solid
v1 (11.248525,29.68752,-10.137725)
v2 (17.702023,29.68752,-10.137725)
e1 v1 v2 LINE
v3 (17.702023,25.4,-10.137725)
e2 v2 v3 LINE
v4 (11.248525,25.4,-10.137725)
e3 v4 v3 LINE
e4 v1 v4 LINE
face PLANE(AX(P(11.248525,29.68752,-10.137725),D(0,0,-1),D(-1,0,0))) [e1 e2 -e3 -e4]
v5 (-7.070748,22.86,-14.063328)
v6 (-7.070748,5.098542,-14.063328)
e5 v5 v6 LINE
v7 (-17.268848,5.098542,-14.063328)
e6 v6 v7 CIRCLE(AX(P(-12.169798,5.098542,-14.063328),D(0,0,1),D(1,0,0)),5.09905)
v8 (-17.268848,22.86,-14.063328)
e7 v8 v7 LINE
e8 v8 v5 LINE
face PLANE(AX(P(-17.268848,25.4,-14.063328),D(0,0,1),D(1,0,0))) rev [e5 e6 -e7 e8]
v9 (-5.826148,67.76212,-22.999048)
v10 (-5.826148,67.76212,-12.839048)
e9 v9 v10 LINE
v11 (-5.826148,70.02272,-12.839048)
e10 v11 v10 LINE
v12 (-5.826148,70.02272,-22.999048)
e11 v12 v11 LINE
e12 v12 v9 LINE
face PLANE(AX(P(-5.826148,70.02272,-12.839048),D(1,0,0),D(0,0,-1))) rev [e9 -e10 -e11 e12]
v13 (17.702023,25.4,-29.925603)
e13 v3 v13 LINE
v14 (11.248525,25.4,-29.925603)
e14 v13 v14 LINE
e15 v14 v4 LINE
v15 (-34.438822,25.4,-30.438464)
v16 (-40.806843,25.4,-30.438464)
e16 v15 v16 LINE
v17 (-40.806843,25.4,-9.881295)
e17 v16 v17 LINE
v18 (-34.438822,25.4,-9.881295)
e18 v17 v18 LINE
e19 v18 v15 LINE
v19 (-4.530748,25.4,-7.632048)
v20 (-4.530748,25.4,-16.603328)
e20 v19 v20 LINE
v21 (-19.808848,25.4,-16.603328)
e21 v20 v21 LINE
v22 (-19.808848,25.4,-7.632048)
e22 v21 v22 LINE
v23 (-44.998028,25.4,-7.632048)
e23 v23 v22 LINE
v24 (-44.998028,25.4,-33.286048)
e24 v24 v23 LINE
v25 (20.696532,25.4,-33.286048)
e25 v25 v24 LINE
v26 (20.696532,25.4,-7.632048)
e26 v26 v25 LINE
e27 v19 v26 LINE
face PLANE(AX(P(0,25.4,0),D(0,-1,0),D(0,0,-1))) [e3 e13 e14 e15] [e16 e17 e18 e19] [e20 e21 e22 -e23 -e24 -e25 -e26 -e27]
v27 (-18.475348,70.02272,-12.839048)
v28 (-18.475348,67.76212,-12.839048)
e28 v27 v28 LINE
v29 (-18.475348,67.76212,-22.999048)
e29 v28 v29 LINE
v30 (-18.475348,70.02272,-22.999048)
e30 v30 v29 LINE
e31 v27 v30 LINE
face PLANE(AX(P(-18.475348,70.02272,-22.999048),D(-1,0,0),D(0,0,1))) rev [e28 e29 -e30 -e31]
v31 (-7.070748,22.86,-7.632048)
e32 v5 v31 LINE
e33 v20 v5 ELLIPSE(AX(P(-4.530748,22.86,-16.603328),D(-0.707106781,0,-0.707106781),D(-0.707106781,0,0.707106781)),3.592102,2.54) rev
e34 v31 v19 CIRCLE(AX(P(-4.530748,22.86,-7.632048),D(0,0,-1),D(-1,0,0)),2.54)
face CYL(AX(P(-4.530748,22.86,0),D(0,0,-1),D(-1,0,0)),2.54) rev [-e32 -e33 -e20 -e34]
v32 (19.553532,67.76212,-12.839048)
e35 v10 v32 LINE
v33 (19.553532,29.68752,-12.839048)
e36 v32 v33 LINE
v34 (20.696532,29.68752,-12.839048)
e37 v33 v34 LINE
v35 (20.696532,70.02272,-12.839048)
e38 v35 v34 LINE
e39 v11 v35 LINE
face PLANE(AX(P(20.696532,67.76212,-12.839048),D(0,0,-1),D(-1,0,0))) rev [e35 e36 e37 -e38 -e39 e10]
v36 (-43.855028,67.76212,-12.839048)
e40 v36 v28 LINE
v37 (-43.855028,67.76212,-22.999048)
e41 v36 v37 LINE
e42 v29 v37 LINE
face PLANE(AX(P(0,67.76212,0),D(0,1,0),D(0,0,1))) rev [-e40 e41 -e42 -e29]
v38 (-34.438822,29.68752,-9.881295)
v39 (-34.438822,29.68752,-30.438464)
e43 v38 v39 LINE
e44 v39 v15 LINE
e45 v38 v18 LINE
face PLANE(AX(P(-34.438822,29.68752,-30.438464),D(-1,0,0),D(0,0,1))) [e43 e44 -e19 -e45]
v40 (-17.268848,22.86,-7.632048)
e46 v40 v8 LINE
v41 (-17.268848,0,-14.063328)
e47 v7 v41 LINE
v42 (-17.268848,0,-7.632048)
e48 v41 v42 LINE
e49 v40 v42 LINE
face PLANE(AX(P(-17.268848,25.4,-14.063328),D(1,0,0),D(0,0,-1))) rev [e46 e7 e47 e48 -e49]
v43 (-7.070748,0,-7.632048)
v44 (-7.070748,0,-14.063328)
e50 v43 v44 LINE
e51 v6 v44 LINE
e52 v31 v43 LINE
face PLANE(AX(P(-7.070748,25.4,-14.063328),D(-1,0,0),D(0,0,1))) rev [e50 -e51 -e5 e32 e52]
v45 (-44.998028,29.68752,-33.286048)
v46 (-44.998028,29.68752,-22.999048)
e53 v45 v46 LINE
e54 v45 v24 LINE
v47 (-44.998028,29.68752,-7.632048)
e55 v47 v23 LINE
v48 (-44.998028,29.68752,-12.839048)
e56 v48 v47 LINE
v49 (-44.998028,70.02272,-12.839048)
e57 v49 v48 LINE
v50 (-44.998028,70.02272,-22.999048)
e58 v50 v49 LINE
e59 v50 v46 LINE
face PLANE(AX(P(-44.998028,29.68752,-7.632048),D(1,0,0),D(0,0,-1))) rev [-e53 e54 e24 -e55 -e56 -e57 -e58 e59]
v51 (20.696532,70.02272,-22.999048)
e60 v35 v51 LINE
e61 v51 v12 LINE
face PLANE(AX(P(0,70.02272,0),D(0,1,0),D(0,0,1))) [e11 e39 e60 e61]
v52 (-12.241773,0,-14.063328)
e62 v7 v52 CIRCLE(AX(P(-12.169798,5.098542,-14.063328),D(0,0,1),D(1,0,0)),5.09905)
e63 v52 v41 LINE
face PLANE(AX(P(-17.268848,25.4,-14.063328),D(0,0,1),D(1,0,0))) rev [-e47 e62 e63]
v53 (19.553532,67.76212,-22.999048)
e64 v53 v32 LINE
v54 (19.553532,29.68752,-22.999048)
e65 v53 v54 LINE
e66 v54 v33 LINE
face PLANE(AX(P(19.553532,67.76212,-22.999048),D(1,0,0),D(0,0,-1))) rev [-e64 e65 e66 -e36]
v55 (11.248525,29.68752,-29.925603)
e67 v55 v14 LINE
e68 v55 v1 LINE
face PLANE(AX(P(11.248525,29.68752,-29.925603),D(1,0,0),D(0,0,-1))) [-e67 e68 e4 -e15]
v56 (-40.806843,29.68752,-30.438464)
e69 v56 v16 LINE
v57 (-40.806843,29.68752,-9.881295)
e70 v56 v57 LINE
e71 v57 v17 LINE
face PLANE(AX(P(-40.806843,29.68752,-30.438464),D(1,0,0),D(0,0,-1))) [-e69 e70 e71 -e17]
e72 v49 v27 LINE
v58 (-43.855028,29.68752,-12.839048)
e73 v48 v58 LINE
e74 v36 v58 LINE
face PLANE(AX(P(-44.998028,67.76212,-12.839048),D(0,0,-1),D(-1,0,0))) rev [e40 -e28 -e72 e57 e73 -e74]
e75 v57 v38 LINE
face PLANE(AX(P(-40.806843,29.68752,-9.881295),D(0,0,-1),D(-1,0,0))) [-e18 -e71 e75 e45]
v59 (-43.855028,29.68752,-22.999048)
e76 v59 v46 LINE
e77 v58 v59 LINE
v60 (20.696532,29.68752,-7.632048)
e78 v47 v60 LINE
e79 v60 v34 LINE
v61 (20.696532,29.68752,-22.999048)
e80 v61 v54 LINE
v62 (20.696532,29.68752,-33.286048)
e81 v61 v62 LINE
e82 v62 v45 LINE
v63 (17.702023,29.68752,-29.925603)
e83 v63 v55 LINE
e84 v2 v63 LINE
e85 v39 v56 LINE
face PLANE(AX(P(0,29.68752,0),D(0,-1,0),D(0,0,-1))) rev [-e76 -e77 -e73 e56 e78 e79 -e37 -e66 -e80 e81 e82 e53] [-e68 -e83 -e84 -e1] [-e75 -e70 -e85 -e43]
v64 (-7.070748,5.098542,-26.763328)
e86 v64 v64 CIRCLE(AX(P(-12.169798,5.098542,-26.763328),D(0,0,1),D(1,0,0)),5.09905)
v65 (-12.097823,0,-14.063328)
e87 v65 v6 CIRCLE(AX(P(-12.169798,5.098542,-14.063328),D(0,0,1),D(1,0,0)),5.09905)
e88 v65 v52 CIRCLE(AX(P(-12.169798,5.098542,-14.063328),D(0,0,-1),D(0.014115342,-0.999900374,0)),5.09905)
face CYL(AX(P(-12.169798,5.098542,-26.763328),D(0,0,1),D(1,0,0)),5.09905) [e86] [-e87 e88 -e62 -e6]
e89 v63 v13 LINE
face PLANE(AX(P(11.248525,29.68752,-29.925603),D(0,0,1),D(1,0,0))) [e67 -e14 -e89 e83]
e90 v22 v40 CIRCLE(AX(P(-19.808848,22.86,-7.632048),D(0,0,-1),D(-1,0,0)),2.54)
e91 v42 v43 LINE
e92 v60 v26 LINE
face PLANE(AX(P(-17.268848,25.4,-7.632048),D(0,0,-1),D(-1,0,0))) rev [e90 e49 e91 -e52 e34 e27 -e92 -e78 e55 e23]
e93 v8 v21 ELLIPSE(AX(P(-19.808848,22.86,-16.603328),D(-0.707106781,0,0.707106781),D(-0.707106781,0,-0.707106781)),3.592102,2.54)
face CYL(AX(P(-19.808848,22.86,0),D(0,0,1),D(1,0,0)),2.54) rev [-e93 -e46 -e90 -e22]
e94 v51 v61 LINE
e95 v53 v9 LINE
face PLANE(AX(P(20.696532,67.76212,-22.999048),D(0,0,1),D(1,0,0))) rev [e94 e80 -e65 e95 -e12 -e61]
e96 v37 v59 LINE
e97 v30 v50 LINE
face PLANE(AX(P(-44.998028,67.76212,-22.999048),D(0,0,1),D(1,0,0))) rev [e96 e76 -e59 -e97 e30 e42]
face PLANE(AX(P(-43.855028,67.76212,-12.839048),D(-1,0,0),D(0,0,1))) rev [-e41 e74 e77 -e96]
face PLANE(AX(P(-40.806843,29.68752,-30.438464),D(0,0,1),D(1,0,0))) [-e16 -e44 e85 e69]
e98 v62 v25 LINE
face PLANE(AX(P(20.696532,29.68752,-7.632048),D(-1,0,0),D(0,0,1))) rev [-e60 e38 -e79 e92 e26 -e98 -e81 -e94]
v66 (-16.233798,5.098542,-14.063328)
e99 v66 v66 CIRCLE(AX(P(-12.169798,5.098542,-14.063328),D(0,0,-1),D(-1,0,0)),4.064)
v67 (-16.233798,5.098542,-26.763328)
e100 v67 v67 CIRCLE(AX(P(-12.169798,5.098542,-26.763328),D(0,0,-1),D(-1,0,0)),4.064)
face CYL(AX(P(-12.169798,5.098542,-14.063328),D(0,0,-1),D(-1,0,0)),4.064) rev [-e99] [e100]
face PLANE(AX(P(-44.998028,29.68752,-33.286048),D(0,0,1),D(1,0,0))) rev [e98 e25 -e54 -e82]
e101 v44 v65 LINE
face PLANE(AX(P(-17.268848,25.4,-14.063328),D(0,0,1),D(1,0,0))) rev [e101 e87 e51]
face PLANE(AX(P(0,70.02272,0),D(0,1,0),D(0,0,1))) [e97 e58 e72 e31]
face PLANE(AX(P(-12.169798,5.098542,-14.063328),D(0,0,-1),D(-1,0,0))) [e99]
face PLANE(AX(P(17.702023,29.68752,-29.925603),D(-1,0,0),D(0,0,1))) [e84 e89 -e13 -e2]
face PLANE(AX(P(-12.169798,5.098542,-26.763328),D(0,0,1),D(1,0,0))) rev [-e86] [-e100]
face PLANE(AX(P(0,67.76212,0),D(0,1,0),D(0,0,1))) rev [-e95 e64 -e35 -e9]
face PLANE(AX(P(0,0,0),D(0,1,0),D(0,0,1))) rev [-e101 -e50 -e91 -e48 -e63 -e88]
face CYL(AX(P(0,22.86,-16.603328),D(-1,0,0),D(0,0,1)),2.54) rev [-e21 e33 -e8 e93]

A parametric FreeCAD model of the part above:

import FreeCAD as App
import Part
import Sketcher
Q = App.Units.Quantity


def edges_at(feature, points):
    """Names of the edges that pass closest to the given points."""
    edges = feature.Shape.Edges
    near = lambda p: min(range(len(edges)), key=lambda i: edges[i].distToShape(Part.Vertex(*p))[0])
    return sorted({f"Edge{near(p) + 1}" for p in points})


def add_polygon(sketch, points):
    """Adds a closed chain of lines whose ends are joined by coincident constraints."""
    first, n = sketch.GeometryCount, len(points)
    for a, b in zip(points, points[1:] + points[:1]):
        sketch.addGeometry(Part.LineSegment(App.Vector(*a, 0), App.Vector(*b, 0)), False)
    for i in range(n):
        sketch.addConstraint(Sketcher.Constraint("Coincident", first + i, 2, first + (i + 1) % n, 1))

doc = App.newDocument("Part")
body = doc.addObject("PartDesign::Body", "Body")

sketch1 = doc.addObject("Sketcher::SketchObject", "Sketch")
body.addObject(sketch1)
sketch1.AttachmentSupport = (doc.XZ_Plane, [""])
sketch1.MapMode = "FlatFace"
add_polygon(sketch1, [(-17, -14), (-17, -8), (-7, -8), (-7, -14)])
sketch1.addConstraint([
    Sketcher.Constraint("Vertical", 0),
    Sketcher.Constraint("Horizontal", 1),
    Sketcher.Constraint("Vertical", 2),
    Sketcher.Constraint("Horizontal", 3),
    Sketcher.Constraint("DistanceX", 1, 1, 1, 2, Q("0.4015 in")),
    Sketcher.Constraint("DistanceY", 0, 1, 0, 2, Q("0.2532 in")),
    Sketcher.Constraint("DistanceY", 0, 2, -1, 1, Q("7.632048 mm")),
    Sketcher.Constraint("DistanceX", 0, 2, -1, 1, Q("17.268848 mm")),
])
pad1 = doc.addObject("PartDesign::Pad", "Pad")
body.addObject(pad1)
pad1.Profile = sketch1
pad1.Length = Q("1 in")
pad1.Reversed = True

sketch2 = doc.addObject("Sketcher::SketchObject", "Sketch001")
body.addObject(sketch2)
sketch2.AttachmentSupport = (doc.XY_Plane, [""])
sketch2.MapMode = "FlatFace"
sketch2.AttachmentOffset = App.Placement(App.Vector(0, 0, -14.063328), App.Rotation())
sketch2.addGeometry(Part.Circle(App.Vector(-12, 5, 0), App.Vector(0, 0, 1), 5), False)
sketch2.addConstraint([
    Sketcher.Constraint("Diameter", 0, Q("0.4015 in")),
    Sketcher.Constraint("DistanceX", 0, 3, -1, 1, Q("12.169798 mm")),
    Sketcher.Constraint("DistanceY", -1, 1, 0, 3, Q("5.098542 mm")),
])
pad2 = doc.addObject("PartDesign::Pad", "Pad001")
body.addObject(pad2)
pad2.Profile = sketch2
pad2.Length = Q("0.5 in")
pad2.Reversed = True

sketch3 = doc.addObject("Sketcher::SketchObject", "Sketch002")
body.addObject(sketch3)
sketch3.AttachmentSupport = (doc.XZ_Plane, [""])
sketch3.MapMode = "FlatFace"
sketch3.AttachmentOffset = App.Placement(App.Vector(0, 0, -1 * 25.4), App.Rotation())
add_polygon(sketch3, [(-45, -33), (-45, -8), (21, -8), (21, -33)])
add_polygon(sketch3, [(18, -10), (11, -10), (11, -30), (18, -30)])
add_polygon(sketch3, [(-34, -10), (-41, -10), (-41, -30), (-34, -30)])
sketch3.addConstraint([
    Sketcher.Constraint("Vertical", 0),
    Sketcher.Constraint("Horizontal", 1),
    Sketcher.Constraint("Vertical", 2),
    Sketcher.Constraint("Horizontal", 3),
    Sketcher.Constraint("Horizontal", 4),
    Sketcher.Constraint("Vertical", 5),
    Sketcher.Constraint("Horizontal", 6),
    Sketcher.Constraint("Vertical", 7),
    Sketcher.Constraint("Horizontal", 8),
    Sketcher.Constraint("Vertical", 9),
    Sketcher.Constraint("Horizontal", 10),
    Sketcher.Constraint("Vertical", 11),
    Sketcher.Constraint("DistanceY", 0, 1, 0, 2, Q("1.01 in")),
    Sketcher.Constraint("DistanceX", 1, 1, 1, 2, Q("2.5864 in")),
    Sketcher.Constraint("DistanceX", 4, 2, 4, 1, Q("6.453498 mm")),
    Sketcher.Constraint("DistanceX", 8, 2, 8, 1, Q("6.368021 mm")),
    Sketcher.Constraint("DistanceY", 5, 2, 5, 1, Q("19.787878 mm")),
    Sketcher.Constraint("DistanceY", 9, 2, 9, 1, Q("20.557169 mm")),
    Sketcher.Constraint("DistanceY", 0, 2, -1, 1, Q("7.632048 mm")),
    Sketcher.Constraint("DistanceX", 6, 2, 2, 2, Q("2.994509 mm")),
    Sketcher.Constraint("DistanceX", 8, 2, 4, 2, Q("52.055368 mm")),
    Sketcher.Constraint("DistanceY", 4, 2, 8, 2, Q("0.25643 mm")),
    Sketcher.Constraint("DistanceX", 0, 2, -1, 1, Q("44.998028 mm")),
    Sketcher.Constraint("DistanceY", 4, 2, -1, 1, Q("10.137725 mm")),
])
pad3 = doc.addObject("PartDesign::Pad", "Pad002")
body.addObject(pad3)
pad3.Profile = sketch3
pad3.Length = Q("0.1688 in")
pad3.Reversed = True

sketch4 = doc.addObject("Sketcher::SketchObject", "Sketch003")
body.addObject(sketch4)
sketch4.AttachmentSupport = (doc.XZ_Plane, [""])
sketch4.MapMode = "FlatFace"
sketch4.AttachmentOffset = App.Placement(App.Vector(0, 0, -1.1688 * 25.4), App.Rotation())
add_polygon(sketch4, [(-45, -23), (-45, -12.8), (-43.9, -12.8), (-43.9, -23)])
add_polygon(sketch4, [(19.6, -23), (19.6, -12.8), (20.7, -12.8), (20.7, -23)])
sketch4.addConstraint([
    Sketcher.Constraint("Vertical", 0),
    Sketcher.Constraint("Horizontal", 1),
    Sketcher.Constraint("Vertical", 2),
    Sketcher.Constraint("Horizontal", 3),
    Sketcher.Constraint("Vertical", 4),
    Sketcher.Constraint("Horizontal", 5),
    Sketcher.Constraint("Vertical", 6),
    Sketcher.Constraint("Horizontal", 7),
    Sketcher.Constraint("Horizontal", 1, 2, 4, 2),
    Sketcher.Constraint("Horizontal", 3, 2, 6, 2),
    Sketcher.Constraint("Equal", 3, 5),
    Sketcher.Constraint("DistanceY", 0, 1, 0, 2, Q("0.4 in")),
    Sketcher.Constraint("DistanceX", 1, 1, 1, 2, Q("0.045 in")),
    Sketcher.Constraint("DistanceX", 1, 2, 4, 2, Q("2.4964 in")),
    Sketcher.Constraint("DistanceY", 0, 2, -1, 1, Q("12.839048 mm")),
    Sketcher.Constraint("DistanceX", 0, 2, -1, 1, Q("44.998028 mm")),
])
pad4 = doc.addObject("PartDesign::Pad", "Pad003")
body.addObject(pad4)
pad4.Profile = sketch4
pad4.Length = Q("1.499 in")
pad4.Reversed = True

sketch5 = doc.addObject("Sketcher::SketchObject", "Sketch004")
body.addObject(sketch5)
sketch5.AttachmentSupport = (doc.XZ_Plane, [""])
sketch5.MapMode = "FlatFace"
sketch5.AttachmentOffset = App.Placement(App.Vector(0, 0, -2.6678 * 25.4), App.Rotation())
add_polygon(sketch5, [(-45, -23), (-45, -13), (-18, -13), (-18, -23)])
add_polygon(sketch5, [(-6, -23), (-6, -13), (21, -13), (21, -23)])
sketch5.addConstraint([
    Sketcher.Constraint("Vertical", 0),
    Sketcher.Constraint("Horizontal", 1),
    Sketcher.Constraint("Vertical", 2),
    Sketcher.Constraint("Horizontal", 3),
    Sketcher.Constraint("Vertical", 4),
    Sketcher.Constraint("Horizontal", 5),
    Sketcher.Constraint("Vertical", 6),
    Sketcher.Constraint("Horizontal", 7),
    Sketcher.Constraint("Horizontal", 1, 2, 4, 2),
    Sketcher.Constraint("Horizontal", 3, 2, 6, 2),
    Sketcher.Constraint("Equal", 3, 5),
    Sketcher.Constraint("DistanceY", 0, 1, 0, 2, Q("0.4 in")),
    Sketcher.Constraint("DistanceX", 1, 1, 1, 2, Q("1.0442 in")),
    Sketcher.Constraint("DistanceX", 1, 2, 4, 2, Q("0.498 in")),
    Sketcher.Constraint("DistanceY", 0, 2, -1, 1, Q("12.839048 mm")),
    Sketcher.Constraint("DistanceX", 0, 2, -1, 1, Q("44.998028 mm")),
])
pad5 = doc.addObject("PartDesign::Pad", "Pad004")
body.addObject(pad5)
pad5.Profile = sketch5
pad5.Length = Q("0.089 in")
pad5.Reversed = True
doc.recompute()

fillet = doc.addObject("PartDesign::Fillet", "Fillet")
body.addObject(fillet)
fillet.Base = (pad5, edges_at(pad5, [(-12.17, 25.4, -14.063)]))
fillet.Radius = Q("0.1 in")
doc.recompute()

fillet2 = doc.addObject("PartDesign::Fillet", "Fillet001")
body.addObject(fillet2)
fillet2.Base = (fillet, edges_at(fillet, [(-17.269, 25.4, -12.118)]))
fillet2.Radius = Q("0.1 in")
doc.recompute()

fillet3 = doc.addObject("PartDesign::Fillet", "Fillet002")
body.addObject(fillet3)
fillet3.Base = (fillet2, edges_at(fillet2, [(-7.071, 25.4, -12.118)]))
fillet3.Radius = Q("0.1 in")

sketch6 = doc.addObject("Sketcher::SketchObject", "Sketch005")
body.addObject(sketch6)
sketch6.AttachmentSupport = (doc.XY_Plane, [""])
sketch6.MapMode = "FlatFace"
sketch6.AttachmentOffset = App.Placement(App.Vector(0, 0, -26.763328), App.Rotation())
sketch6.addGeometry(Part.Circle(App.Vector(-12.2, 5.1, 0), App.Vector(0, 0, 1), 4.1), False)
sketch6.addConstraint([
    Sketcher.Constraint("Diameter", 0, Q("0.32 in")),
    Sketcher.Constraint("DistanceX", 0, 3, -1, 1, Q("12.169798 mm")),
    Sketcher.Constraint("DistanceY", -1, 1, 0, 3, Q("5.098542 mm")),
])
pocket1 = doc.addObject("PartDesign::Pocket", "Pocket")
body.addObject(pocket1)
pocket1.Profile = sketch6
pocket1.Length = Q("0.5 in")
pocket1.Reversed = True

doc.recompute()
